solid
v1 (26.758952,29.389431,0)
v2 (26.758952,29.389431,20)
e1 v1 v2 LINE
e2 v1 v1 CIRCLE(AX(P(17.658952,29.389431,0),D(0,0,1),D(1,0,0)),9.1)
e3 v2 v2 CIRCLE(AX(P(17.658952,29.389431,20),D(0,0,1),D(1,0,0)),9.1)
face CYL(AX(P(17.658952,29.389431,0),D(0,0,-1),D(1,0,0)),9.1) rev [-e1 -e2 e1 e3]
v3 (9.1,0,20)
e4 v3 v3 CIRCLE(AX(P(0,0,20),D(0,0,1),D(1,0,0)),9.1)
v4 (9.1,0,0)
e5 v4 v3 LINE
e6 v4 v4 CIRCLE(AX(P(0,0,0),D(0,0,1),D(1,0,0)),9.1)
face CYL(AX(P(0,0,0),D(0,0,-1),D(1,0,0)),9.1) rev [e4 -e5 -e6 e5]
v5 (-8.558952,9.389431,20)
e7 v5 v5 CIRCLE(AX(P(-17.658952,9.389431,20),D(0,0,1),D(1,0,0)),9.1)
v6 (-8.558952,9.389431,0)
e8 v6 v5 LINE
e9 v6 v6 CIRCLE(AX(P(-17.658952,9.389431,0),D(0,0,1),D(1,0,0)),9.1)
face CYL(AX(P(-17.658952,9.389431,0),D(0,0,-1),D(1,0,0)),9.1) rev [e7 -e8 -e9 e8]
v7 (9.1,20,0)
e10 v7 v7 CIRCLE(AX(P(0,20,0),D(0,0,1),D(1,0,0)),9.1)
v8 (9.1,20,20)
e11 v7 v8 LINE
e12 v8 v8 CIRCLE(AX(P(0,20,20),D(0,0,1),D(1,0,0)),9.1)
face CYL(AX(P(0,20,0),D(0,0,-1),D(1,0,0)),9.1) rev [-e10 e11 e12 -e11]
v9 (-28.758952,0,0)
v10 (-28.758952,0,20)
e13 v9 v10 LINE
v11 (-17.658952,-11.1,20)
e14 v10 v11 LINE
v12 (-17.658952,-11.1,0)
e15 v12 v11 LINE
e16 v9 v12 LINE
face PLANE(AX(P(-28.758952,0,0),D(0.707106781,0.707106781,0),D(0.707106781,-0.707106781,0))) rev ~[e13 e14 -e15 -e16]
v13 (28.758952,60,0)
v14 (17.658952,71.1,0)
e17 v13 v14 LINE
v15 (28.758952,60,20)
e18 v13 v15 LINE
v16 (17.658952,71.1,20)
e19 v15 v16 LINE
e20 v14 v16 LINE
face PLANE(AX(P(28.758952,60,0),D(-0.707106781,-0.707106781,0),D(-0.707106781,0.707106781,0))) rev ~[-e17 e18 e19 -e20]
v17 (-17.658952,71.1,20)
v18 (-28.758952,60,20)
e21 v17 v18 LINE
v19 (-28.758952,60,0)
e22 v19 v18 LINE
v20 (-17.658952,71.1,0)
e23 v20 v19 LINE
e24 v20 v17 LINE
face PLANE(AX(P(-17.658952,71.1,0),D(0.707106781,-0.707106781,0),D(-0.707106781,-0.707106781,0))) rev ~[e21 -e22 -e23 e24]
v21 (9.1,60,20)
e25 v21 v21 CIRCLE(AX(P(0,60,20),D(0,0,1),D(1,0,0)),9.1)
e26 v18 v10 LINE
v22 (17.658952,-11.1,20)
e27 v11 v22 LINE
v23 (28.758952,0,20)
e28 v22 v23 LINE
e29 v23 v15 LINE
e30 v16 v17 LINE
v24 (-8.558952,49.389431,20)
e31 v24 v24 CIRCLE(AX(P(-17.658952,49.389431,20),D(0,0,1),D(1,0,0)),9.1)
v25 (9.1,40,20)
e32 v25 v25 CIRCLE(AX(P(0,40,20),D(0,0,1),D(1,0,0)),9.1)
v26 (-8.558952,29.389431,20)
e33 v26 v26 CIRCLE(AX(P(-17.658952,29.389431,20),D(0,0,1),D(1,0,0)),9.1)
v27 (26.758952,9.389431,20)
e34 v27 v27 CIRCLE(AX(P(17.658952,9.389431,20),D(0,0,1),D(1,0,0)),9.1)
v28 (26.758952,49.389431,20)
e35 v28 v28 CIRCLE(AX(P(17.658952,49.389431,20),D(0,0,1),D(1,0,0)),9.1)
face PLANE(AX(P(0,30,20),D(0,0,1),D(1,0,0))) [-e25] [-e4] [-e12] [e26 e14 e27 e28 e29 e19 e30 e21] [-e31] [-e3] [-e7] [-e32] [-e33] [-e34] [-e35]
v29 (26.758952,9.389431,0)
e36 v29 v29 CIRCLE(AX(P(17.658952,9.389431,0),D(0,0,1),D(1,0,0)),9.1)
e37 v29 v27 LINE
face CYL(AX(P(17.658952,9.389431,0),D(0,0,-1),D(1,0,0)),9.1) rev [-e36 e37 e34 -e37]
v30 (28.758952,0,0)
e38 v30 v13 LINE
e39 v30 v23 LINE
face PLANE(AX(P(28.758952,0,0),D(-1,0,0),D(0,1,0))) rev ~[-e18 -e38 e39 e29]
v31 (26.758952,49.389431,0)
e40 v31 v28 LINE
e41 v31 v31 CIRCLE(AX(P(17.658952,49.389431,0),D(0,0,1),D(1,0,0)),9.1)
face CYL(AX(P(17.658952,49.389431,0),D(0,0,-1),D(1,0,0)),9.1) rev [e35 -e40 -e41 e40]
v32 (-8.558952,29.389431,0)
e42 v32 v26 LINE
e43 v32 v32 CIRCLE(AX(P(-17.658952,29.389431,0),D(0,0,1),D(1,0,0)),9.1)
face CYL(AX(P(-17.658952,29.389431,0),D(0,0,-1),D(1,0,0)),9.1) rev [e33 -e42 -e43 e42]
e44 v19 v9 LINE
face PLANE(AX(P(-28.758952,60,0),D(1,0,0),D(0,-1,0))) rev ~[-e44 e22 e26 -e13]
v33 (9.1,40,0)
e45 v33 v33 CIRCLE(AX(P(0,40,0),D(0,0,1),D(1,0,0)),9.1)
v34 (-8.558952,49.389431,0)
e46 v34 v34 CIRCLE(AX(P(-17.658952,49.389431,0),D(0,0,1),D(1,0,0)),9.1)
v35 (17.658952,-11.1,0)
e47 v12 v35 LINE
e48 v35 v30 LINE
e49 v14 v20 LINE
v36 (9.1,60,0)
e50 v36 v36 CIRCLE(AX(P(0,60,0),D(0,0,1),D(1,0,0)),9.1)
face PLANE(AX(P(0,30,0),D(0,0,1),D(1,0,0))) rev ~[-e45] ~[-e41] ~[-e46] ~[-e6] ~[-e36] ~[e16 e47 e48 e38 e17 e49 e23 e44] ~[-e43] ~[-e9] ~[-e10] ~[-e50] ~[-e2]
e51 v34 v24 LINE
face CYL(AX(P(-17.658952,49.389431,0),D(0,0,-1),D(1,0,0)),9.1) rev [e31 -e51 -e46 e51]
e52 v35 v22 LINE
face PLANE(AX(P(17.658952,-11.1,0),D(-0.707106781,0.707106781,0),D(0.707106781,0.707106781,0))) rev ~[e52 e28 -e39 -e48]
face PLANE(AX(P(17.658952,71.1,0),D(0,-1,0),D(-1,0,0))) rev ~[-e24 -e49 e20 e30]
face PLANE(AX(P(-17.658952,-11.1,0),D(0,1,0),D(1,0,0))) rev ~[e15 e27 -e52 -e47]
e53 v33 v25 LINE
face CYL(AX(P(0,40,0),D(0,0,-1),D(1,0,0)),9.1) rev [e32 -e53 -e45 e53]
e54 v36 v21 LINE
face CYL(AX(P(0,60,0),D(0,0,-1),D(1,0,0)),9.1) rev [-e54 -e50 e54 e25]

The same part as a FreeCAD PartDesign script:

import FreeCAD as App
import Part
import Sketcher

V = App.Vector


def add_polygon(sketch, points):
    """Adds a closed chain of lines whose ends are joined by coincident constraints."""
    first, n = sketch.GeometryCount, len(points)
    for a, b in zip(points, points[1:] + points[:1]):
        sketch.addGeometry(Part.LineSegment(App.Vector(*a, 0), App.Vector(*b, 0)), False)
    for i in range(n):
        sketch.addConstraint(Sketcher.Constraint("Coincident", first + i, 2, first + (i + 1) % n, 1))

doc = App.newDocument("Part")
body = doc.addObject("PartDesign::Body", "Body")

sketch1 = body.newObject("Sketcher::SketchObject", "Sketch")
sketch1.AttachmentSupport = (doc.getObject("XY_Plane"), [""])
sketch1.MapMode = "FlatFace"
add_polygon(sketch1, [(-18, 71), (-29, 60), (-29, 0), (-18, -11), (18, -11), (29, 0), (29, 60), (18, 71)])
sketch1.addGeometry(Part.Circle(V(-18, 9, 0), V(0, 0, 1), 9), False)
sketch1.addGeometry(Part.Circle(V(-18, 29, 0), V(0, 0, 1), 9), False)
sketch1.addGeometry(Part.Circle(V(0, 0, 0), V(0, 0, 1), 9), False)
sketch1.addGeometry(Part.Circle(V(18, 9, 0), V(0, 0, 1), 9), False)
sketch1.addGeometry(Part.Circle(V(0, 20, 0), V(0, 0, 1), 9), False)
sketch1.addGeometry(Part.Circle(V(18, 29, 0), V(0, 0, 1), 9), False)
sketch1.addGeometry(Part.Circle(V(-18, 49, 0), V(0, 0, 1), 9), False)
sketch1.addGeometry(Part.Circle(V(0, 40, 0), V(0, 0, 1), 9), False)
sketch1.addGeometry(Part.Circle(V(18, 49, 0), V(0, 0, 1), 9), False)
sketch1.addGeometry(Part.Circle(V(0, 60, 0), V(0, 0, 1), 9), False)
sketch1.addConstraint([
    Sketcher.Constraint("Vertical", 1),
    Sketcher.Constraint("Horizontal", 3),
    Sketcher.Constraint("Vertical", 5),
    Sketcher.Constraint("Horizontal", 7),
    Sketcher.Constraint("Coincident", 10, 3, -1, 1),
    Sketcher.Constraint("Equal", 8, 9),
    Sketcher.Constraint("Equal", 9, 10),
    Sketcher.Constraint("Equal", 10, 11),
    Sketcher.Constraint("Equal", 11, 12),
    Sketcher.Constraint("Equal", 12, 13),
    Sketcher.Constraint("Equal", 13, 14),
    Sketcher.Constraint("Equal", 14, 15),
    Sketcher.Constraint("Equal", 15, 16),
    Sketcher.Constraint("Equal", 16, 17),
    Sketcher.Constraint("Symmetric", 1, 2, 4, 2, -1, 1),
    Sketcher.Constraint("Symmetric", 8, 3, 11, 3, -2),
    Sketcher.Constraint("Symmetric", 9, 3, 13, 3, -2),
    Sketcher.Constraint("Symmetric", 14, 3, 16, 3, -2),
    Sketcher.Constraint("PointOnObject", 12, 3, -2),
    Sketcher.Constraint("PointOnObject", 15, 3, -2),
    Sketcher.Constraint("PointOnObject", 17, 3, -2),
    Sketcher.Constraint("PointOnObject", 1, 2, -1),
    Sketcher.Constraint("Perpendicular", 0, 2),
    Sketcher.Constraint("Perpendicular", 2, 4),
    Sketcher.Constraint("Perpendicular", 4, 6),
    Sketcher.Constraint("Horizontal", 17, 3, 0, 2),
    Sketcher.Constraint("Horizontal", 0, 2, 5, 2),
    Sketcher.Constraint("Vertical", 8, 3, 9, 3),
    Sketcher.Constraint("Vertical", 9, 3, 14, 3),
    Sketcher.Constraint("Vertical", 14, 3, 2, 2),
    Sketcher.Constraint("Vertical", 16, 3, 3, 2),
    Sketcher.Constraint("Vertical", 3, 2, 6, 2),
    Sketcher.Constraint("Diameter", 8, 18.2),
    Sketcher.Constraint("DistanceY", 1, 2, 1, 1, 60.0),
    Sketcher.Constraint("DistanceY", -1, 1, 12, 3, 20.0),
    Sketcher.Constraint("DistanceY", -1, 1, 15, 3, 40.0),
    Sketcher.Constraint("DistanceY", 8, 3, 9, 3, 20.0),
    Sketcher.Constraint("DistanceY", 9, 3, 14, 3, 20.0),
    Sketcher.Constraint("DistanceY", 2, 2, -1, 1, 11.1),
    Sketcher.Constraint("DistanceX", 3, 1, 3, 2, 35.317904),
    Sketcher.Constraint("DistanceY", -1, 1, 8, 3, 9.389431),
])
pad1 = body.newObject("PartDesign::Pad", "Pad")
pad1.Profile = sketch1
pad1.Length = 20

doc.recompute()
